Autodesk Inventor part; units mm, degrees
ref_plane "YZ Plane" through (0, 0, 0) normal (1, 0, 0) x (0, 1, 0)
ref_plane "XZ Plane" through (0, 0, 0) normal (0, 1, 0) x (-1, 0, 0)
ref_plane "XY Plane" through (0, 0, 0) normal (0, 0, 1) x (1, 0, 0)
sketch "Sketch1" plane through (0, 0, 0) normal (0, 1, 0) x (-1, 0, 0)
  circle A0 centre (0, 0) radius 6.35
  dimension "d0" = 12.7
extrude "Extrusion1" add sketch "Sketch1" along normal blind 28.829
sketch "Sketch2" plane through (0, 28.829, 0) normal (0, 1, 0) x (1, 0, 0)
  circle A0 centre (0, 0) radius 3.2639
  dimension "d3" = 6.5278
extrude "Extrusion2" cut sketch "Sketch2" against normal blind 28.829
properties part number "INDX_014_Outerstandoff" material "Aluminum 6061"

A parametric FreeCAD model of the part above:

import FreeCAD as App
import Part
import Sketcher
from FreeCAD import Vector
Q = App.Units.Quantity

doc = App.newDocument("Part")
body = doc.addObject("PartDesign::Body", "Body")

sketch1 = body.newObject("Sketcher::SketchObject", "Sketch")
sketch1.AttachmentSupport = (doc.getObject("XZ_Plane"), [""])
sketch1.MapMode = "FlatFace"
sketch1.addGeometry(Part.Circle(Vector(0, 0, 0), Vector(0, 0, 1), 6), False)
sketch1.addConstraint(Sketcher.Constraint("Coincident", 0, 3, -1, 1))
sketch1.addConstraint(Sketcher.Constraint("Diameter", 0, Q("0.5 in")))
pad1 = body.newObject("PartDesign::Pad", "Pad")
pad1.Profile = sketch1
pad1.Length = Q("1.135 in")
pad1.Reversed = True

sketch2 = body.newObject("Sketcher::SketchObject", "Sketch001")
sketch2.AttachmentSupport = (doc.getObject("XZ_Plane"), [""])
sketch2.MapMode = "FlatFace"
sketch2.AttachmentOffset = App.Placement(Vector(0, 0, -1.135 * 25.4), App.Rotation())
sketch2.addGeometry(Part.Circle(Vector(0, 0, 0), Vector(0, 0, 1), 3.3), False)
sketch2.addConstraint(Sketcher.Constraint("Coincident", 0, 3, -1, 1))
sketch2.addConstraint(Sketcher.Constraint("Diameter", 0, Q("0.257 in")))
pocket1 = body.newObject("PartDesign::Pocket", "Pocket")
pocket1.Profile = sketch2
pocket1.Length = Q("1.135 in")
pocket1.Reversed = True

doc.recompute()
